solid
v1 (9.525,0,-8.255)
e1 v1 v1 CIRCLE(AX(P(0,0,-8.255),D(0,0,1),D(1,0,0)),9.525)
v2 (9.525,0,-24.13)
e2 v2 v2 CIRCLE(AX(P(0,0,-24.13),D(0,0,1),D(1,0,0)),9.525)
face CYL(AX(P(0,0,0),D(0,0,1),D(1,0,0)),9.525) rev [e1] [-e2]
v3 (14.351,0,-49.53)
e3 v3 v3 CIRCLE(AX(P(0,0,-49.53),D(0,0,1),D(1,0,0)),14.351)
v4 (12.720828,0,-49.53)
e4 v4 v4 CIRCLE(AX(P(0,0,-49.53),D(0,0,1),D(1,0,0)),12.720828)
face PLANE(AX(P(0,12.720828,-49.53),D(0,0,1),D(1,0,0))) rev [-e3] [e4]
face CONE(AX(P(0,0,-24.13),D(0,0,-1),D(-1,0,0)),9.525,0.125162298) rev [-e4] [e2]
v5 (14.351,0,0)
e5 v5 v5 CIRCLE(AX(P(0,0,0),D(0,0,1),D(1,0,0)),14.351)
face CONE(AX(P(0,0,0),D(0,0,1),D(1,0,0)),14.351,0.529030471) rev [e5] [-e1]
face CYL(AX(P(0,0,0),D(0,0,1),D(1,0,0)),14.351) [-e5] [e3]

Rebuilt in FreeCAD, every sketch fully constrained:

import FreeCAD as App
import Part
import Sketcher
from FreeCAD import Vector
Q = App.Units.Quantity

doc = App.newDocument("Part")
body = doc.addObject("PartDesign::Body", "Body")

sketch1 = body.newObject("Sketcher::SketchObject", "Sketch")
sketch1.AttachmentSupport = (doc.getObject("YZ_Plane"), [""])
sketch1.MapMode = "FlatFace"
sketch1.addGeometry(Part.LineSegment(Vector(9.5, -8.3, 0), Vector(9.5, -24.1, 0)), False)
sketch1.addGeometry(Part.LineSegment(Vector(9.5, -24.1, 0), Vector(12.7, -49.5, 0)), False)
sketch1.addGeometry(Part.LineSegment(Vector(12.7, -49.5, 0), Vector(14.4, -49.5, 0)), False)
sketch1.addGeometry(Part.LineSegment(Vector(14.4, -49.5, 0), Vector(14.4, 0, 0)), False)
sketch1.addGeometry(Part.LineSegment(Vector(14.4, 0, 0), Vector(9.5, -8.3, 0)), False)
sketch1.addConstraint(Sketcher.Constraint("Coincident", 0, 2, 1, 1))
sketch1.addConstraint(Sketcher.Constraint("Coincident", 1, 2, 2, 1))
sketch1.addConstraint(Sketcher.Constraint("Coincident", 2, 2, 3, 1))
sketch1.addConstraint(Sketcher.Constraint("Coincident", 3, 2, 4, 1))
sketch1.addConstraint(Sketcher.Constraint("Coincident", 4, 2, 0, 1))
sketch1.addConstraint(Sketcher.Constraint("Vertical", 0))
sketch1.addConstraint(Sketcher.Constraint("Horizontal", 2))
sketch1.addConstraint(Sketcher.Constraint("Vertical", 3))
sketch1.addConstraint(Sketcher.Constraint("PointOnObject", 3, 2, -1))
sketch1.addConstraint(Sketcher.Constraint("DistanceY", 1, 2, 0, 2, Q("1 in")))
sketch1.addConstraint(Sketcher.Constraint("DistanceY", 3, 1, 3, 2, Q("1.95 in")))
sketch1.addConstraint(Sketcher.Constraint("DistanceY", 0, 2, 0, 1, Q("0.625 in")))
sketch1.addConstraint(Sketcher.Constraint("DistanceX", 0, 2, 2, 2, Q("0.19 in")))
sketch1.addConstraint(Sketcher.Constraint("DistanceX", -1, 1, 0, 2, Q("0.375 in")))
sketch1.addConstraint(Sketcher.Constraint("Distance", 1, Q("25.60026 mm")))
revolution = body.newObject("PartDesign::Revolution", "Revolution")
revolution.Profile = sketch1
revolution.ReferenceAxis = (sketch1, ["V_Axis"])
revolution.Angle = 360

doc.recompute()
